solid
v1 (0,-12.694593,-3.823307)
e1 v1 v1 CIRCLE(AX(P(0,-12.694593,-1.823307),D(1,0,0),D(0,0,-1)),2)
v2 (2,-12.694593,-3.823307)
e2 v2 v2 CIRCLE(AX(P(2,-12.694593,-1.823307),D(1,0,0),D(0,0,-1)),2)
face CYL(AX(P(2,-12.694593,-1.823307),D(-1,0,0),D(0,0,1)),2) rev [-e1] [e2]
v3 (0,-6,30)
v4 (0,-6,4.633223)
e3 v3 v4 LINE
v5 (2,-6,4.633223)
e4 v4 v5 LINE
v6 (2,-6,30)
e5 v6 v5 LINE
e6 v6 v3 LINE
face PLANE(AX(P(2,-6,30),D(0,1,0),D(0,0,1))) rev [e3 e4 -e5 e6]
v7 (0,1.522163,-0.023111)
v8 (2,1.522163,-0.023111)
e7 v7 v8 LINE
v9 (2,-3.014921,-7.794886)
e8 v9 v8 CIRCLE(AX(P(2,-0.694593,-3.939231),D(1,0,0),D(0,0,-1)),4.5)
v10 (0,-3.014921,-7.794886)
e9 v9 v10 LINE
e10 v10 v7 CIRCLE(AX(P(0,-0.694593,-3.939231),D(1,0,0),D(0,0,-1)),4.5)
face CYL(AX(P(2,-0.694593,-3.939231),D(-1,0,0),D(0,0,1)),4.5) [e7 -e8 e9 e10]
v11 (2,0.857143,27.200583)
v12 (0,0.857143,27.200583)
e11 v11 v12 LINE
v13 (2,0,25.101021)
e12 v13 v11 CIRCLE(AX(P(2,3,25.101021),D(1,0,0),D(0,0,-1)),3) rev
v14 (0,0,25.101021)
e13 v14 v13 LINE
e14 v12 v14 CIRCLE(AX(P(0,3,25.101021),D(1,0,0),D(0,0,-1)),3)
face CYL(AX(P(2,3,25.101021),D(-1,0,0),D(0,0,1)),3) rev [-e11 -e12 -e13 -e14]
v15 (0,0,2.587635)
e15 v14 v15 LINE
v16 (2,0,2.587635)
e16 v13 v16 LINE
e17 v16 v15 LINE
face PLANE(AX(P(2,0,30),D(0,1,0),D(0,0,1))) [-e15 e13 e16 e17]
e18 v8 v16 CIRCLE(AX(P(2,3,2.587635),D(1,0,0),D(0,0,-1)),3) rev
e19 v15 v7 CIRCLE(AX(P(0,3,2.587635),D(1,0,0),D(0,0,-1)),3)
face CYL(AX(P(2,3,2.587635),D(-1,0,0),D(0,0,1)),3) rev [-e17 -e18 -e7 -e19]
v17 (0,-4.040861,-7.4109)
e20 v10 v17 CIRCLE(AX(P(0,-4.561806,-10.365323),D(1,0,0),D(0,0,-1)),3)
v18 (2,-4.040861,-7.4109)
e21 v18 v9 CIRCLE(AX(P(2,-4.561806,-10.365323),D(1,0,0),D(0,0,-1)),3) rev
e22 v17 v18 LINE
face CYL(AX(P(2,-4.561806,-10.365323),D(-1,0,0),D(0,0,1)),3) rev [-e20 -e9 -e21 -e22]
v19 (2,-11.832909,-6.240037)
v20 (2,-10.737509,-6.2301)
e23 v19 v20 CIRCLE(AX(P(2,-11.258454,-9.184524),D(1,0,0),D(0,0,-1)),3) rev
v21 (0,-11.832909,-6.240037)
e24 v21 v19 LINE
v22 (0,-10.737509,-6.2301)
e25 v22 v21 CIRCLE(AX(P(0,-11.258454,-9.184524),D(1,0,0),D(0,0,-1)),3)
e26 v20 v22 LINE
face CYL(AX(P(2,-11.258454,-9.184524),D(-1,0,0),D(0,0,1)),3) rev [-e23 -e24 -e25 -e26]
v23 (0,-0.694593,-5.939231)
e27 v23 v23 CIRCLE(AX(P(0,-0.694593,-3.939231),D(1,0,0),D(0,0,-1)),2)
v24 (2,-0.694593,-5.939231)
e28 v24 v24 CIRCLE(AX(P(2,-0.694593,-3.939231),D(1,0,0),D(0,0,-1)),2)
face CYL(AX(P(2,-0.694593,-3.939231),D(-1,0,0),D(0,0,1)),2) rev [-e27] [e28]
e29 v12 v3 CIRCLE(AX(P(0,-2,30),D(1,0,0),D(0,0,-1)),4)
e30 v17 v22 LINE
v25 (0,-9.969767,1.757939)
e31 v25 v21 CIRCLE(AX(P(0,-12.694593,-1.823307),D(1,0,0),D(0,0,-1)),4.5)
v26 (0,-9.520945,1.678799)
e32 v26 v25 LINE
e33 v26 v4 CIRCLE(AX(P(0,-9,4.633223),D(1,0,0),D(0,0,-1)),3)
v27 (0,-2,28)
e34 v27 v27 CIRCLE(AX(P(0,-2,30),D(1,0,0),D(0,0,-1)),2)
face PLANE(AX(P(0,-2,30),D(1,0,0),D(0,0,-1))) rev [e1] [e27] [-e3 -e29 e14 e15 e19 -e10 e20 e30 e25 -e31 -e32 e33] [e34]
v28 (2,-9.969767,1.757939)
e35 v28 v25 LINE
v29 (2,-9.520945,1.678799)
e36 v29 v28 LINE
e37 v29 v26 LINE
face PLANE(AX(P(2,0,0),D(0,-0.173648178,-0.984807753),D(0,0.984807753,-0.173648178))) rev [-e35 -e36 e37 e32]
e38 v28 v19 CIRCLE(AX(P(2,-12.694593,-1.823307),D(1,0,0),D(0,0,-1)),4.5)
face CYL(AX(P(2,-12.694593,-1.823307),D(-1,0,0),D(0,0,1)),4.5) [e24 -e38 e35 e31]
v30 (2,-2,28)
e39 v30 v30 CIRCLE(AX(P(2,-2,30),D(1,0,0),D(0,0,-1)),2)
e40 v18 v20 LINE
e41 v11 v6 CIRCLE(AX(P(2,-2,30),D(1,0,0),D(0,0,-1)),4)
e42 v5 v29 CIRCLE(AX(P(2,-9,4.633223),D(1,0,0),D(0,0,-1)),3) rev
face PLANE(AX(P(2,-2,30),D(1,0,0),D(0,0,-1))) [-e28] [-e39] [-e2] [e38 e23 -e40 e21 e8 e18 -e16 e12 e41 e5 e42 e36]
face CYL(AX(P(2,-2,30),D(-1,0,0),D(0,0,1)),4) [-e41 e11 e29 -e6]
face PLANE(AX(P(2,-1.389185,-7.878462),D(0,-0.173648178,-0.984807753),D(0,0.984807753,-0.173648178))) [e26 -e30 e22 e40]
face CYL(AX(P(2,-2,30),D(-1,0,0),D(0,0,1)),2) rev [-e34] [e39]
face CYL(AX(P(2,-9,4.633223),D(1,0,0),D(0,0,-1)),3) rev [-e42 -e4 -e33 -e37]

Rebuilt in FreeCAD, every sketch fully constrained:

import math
import FreeCAD as App
import Part
import Sketcher

V = App.Vector
Q = App.Units.Quantity


def edges_at(feature, points):
    """Names of the edges that pass closest to the given points."""
    edges = feature.Shape.Edges
    near = lambda p: min(range(len(edges)), key=lambda i: edges[i].distToShape(Part.Vertex(*p))[0])
    return sorted({f"Edge{near(p) + 1}" for p in points})

doc = App.newDocument("Part")
body = doc.addObject("PartDesign::Body", "Body")

# Sketch on YZ plane
sketch1 = body.newObject("Sketcher::SketchObject", "Sketch")
sketch1.AttachmentSupport = (doc.getObject("YZ_Plane"), [""])
sketch1.MapMode = "FlatFace"
sketch1.addGeometry([
    Part.ArcOfCircle(Part.Circle(V(-0.7, -3.9, 0), V(0, 0, 1), 4.5), math.radians(-127), math.radians(-90)),  # 0
    Part.ArcOfCircle(Part.Circle(V(-0.7, -3.9, 0), V(0, 0, 1), 4.5), math.radians(-90), math.radians(81)),  # 1
    Part.LineSegment(V(0, 0.5, 0), V(0, 26.5, 0)),  # 2
    Part.ArcOfCircle(Part.Circle(V(-2, 30, 0), V(0, 0, 1), 4), math.radians(-60), math.radians(180)),  # 3
    Part.LineSegment(V(-6, 30, 0), V(-6, 1.1, 0)),  # 4
    Part.LineSegment(V(-6, 1.1, 0), V(-10, 1.8, 0)),  # 5
    Part.ArcOfCircle(Part.Circle(V(-12.7, -1.8, 0), V(0, 0, 1), 4.5), math.radians(53), math.radians(270)),  # 6
    Part.ArcOfCircle(Part.Circle(V(-12.7, -1.8, 0), V(0, 0, 1), 4.5), math.radians(-90), math.radians(-72.73)),  # 7
    Part.LineSegment(V(-11.4, -6.1, 0), V(-3.4, -7.5, 0)),  # 8
], False)
sketch1.addConstraint([
    Sketcher.Constraint("Tangent", 0, 2, 1, 1),
    Sketcher.Constraint("Coincident", 1, 2, 2, 1),
    Sketcher.Constraint("Coincident", 2, 2, 3, 1),
    Sketcher.Constraint("Tangent", 3, 2, 4, 1),
    Sketcher.Constraint("Coincident", 4, 2, 5, 1),
    Sketcher.Constraint("Coincident", 5, 2, 6, 1),
    Sketcher.Constraint("Tangent", 6, 2, 7, 1),
    Sketcher.Constraint("Coincident", 7, 2, 8, 1),
    Sketcher.Constraint("Coincident", 8, 2, 0, 1),
    Sketcher.Constraint("Vertical", 2),
    Sketcher.Constraint("Vertical", 4),
    Sketcher.Constraint("Equal", 0, 1),
    Sketcher.Constraint("Equal", 1, 6),
    Sketcher.Constraint("Equal", 6, 7),
    Sketcher.Constraint("PointOnObject", 1, 2, -2),
    Sketcher.Constraint("Parallel", 5, 8),
    Sketcher.Constraint("Vertical", 1, 3, 0, 2),
    Sketcher.Constraint("Vertical", 7, 3, 6, 2),
    Sketcher.Constraint("Radius", 3, 4.0),
    Sketcher.Constraint("Radius", 0, 4.5),
    Sketcher.Constraint("Angle", 5, Q("170 deg")),
    Sketcher.Constraint("DistanceX", 3, 3, -1, 1, 2.0),
    Sketcher.Constraint("DistanceY", -1, 1, 3, 3, 30.0),
    Sketcher.Constraint("DistanceX", 6, 3, 0, 3, 12.0),
    Sketcher.Constraint("DistanceY", 2, 1, 2, 2, 26.029059),
    Sketcher.Constraint("DistanceY", 4, 2, 4, 1, 28.942038),
    Sketcher.Constraint("DistanceY", 1, 2, 5, 2, 1.2511),
    Sketcher.Constraint("DistanceY", 0, 3, -1, 1, 3.939231),
    Sketcher.Constraint("DistanceX", 8, 2, -1, 1, 3.419419),
])
pad1 = body.newObject("PartDesign::Pad", "Pad")
pad1.Profile = sketch1
pad1.Length = 2

# Sketch on YZ plane
sketch2 = body.newObject("Sketcher::SketchObject", "Sketch001")
sketch2.AttachmentSupport = (doc.getObject("YZ_Plane"), [""])
sketch2.MapMode = "FlatFace"
sketch2.addGeometry([
    Part.Circle(V(-2, 30, 0), V(0, 0, 1), 2),
    Part.Circle(V(-0.7, -3.9, 0), V(0, 0, 1), 2),
    Part.Circle(V(-12.7, -1.8, 0), V(0, 0, 1), 2),
], False)
sketch2.addConstraint([
    Sketcher.Constraint("Equal", 0, 1),
    Sketcher.Constraint("Equal", 1, 2),
    Sketcher.Constraint("Diameter", 0, 4.0),
    Sketcher.Constraint("DistanceX", 0, 3, -1, 1, 2.0),
    Sketcher.Constraint("DistanceY", -1, 1, 0, 3, 30.0),
    Sketcher.Constraint("DistanceX", 2, 3, 1, 3, 12.0),
    Sketcher.Constraint("DistanceY", 1, 3, -1, 1, 3.939231),
    Sketcher.Constraint("DistanceX", 1, 3, -1, 1, 0.694593),
    Sketcher.Constraint("DistanceY", 2, 3, -1, 1, 1.823307),
])
pocket1 = body.newObject("PartDesign::Pocket", "Pocket")
pocket1.Profile = sketch2
pocket1.Type = "ThroughAll"
pocket1.Reversed = True
doc.recompute()

fillet = body.newObject("PartDesign::Fillet", "Fillet")
fillet.Base = (pocket1, edges_at(pocket1, [
    (1, -6, 1.058),
    (1, 0, 0.507),
    (1, -3.419, -7.52),
    (1, -11.359, -6.121),
    (1, 0, 26.536),
]))
fillet.Radius = 3

doc.recompute()
